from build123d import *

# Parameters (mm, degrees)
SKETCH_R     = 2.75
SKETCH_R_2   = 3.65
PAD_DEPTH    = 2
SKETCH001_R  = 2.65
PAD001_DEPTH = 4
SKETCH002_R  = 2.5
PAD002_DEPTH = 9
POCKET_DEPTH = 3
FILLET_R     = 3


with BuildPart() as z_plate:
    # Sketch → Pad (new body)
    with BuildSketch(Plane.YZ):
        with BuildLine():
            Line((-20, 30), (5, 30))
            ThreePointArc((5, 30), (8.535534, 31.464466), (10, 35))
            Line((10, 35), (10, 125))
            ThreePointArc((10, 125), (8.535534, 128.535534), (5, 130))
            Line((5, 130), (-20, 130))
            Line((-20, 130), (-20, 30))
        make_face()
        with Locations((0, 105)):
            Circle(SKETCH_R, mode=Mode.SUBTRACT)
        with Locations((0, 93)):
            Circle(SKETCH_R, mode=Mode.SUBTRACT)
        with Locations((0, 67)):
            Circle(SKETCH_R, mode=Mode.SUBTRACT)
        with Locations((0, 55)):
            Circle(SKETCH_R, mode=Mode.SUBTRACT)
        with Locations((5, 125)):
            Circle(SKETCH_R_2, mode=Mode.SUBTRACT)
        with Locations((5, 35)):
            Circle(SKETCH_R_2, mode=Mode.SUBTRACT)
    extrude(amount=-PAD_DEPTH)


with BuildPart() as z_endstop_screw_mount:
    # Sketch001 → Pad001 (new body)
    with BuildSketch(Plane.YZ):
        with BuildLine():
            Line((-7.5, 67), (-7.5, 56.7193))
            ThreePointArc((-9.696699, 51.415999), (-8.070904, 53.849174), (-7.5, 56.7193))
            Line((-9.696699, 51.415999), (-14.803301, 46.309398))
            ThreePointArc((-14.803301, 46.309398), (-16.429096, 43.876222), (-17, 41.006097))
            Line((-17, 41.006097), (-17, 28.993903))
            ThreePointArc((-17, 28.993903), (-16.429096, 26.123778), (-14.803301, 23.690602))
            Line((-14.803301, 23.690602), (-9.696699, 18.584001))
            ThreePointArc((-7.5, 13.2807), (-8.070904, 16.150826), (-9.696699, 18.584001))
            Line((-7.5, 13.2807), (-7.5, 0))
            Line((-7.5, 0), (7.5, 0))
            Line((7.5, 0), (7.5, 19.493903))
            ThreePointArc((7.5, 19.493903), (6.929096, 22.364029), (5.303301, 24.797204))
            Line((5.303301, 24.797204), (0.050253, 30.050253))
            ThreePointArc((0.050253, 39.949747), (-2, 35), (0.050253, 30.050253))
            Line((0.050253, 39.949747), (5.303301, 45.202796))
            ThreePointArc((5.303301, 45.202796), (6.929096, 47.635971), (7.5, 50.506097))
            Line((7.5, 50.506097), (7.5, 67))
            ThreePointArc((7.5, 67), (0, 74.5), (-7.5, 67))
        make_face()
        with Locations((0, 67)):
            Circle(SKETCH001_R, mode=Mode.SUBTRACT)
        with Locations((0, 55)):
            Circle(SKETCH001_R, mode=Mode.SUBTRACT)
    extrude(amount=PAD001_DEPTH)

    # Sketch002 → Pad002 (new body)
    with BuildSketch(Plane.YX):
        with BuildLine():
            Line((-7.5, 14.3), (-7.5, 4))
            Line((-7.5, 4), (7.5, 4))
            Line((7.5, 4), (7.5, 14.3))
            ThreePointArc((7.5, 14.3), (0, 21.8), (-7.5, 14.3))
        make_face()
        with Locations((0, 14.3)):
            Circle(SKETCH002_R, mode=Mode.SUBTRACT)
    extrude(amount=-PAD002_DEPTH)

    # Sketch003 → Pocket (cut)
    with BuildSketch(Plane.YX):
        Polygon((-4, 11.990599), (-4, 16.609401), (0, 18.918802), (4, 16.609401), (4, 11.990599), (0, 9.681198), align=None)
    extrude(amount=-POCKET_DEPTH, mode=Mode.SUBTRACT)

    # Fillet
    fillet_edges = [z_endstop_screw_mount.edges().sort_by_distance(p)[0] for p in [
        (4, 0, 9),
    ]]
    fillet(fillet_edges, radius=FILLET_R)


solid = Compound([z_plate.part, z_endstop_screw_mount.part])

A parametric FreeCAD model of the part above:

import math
import FreeCAD as App
import Part
import Sketcher
Q = App.Units.Quantity


def edges_at(feature, points):
    """Names of the edges that pass closest to the given points."""
    edges = feature.Shape.Edges
    near = lambda p: min(range(len(edges)), key=lambda i: edges[i].distToShape(Part.Vertex(*p))[0])
    return sorted({f"Edge{near(p) + 1}" for p in points})

doc = App.newDocument("Part")
body = doc.addObject("PartDesign::Body", "Body")

sketch1 = doc.addObject("Sketcher::SketchObject", "Sketch")
body.addObject(sketch1)
sketch1.AttachmentSupport = (doc.YZ_Plane, [""])
sketch1.MapMode = "FlatFace"
sketch1.addGeometry([
    Part.LineSegment(App.Vector(-20, 30, 0), App.Vector(5, 30, 0)),
    Part.ArcOfCircle(Part.Circle(App.Vector(5, 35, 0), App.Vector(0, 0, 1), 5), math.radians(-90.000004), math.radians(0.000004)),
    Part.LineSegment(App.Vector(10, 35, 0), App.Vector(10, 125, 0)),
    Part.ArcOfCircle(Part.Circle(App.Vector(5, 125, 0), App.Vector(0, 0, 1), 5), math.radians(-0.000004), math.radians(90.000004)),
    Part.LineSegment(App.Vector(5, 130, 0), App.Vector(-20, 130, 0)),
    Part.LineSegment(App.Vector(-20, 130, 0), App.Vector(-20, 30, 0)),
    Part.Circle(App.Vector(0, 55, 0), App.Vector(0, 0, 1), 2.75),
    Part.Circle(App.Vector(0, 67, 0), App.Vector(0, 0, 1), 2.75),
    Part.Circle(App.Vector(5, 35, 0), App.Vector(0, 0, 1), 3.65),
    Part.Circle(App.Vector(0, 93, 0), App.Vector(0, 0, 1), 2.75),
    Part.Circle(App.Vector(0, 105, 0), App.Vector(0, 0, 1), 2.75),
    Part.Circle(App.Vector(5, 125, 0), App.Vector(0, 0, 1), 3.65),
], False)
sketch1.addConstraint([
    Sketcher.Constraint("Tangent", 0, 2, 1, 1),
    Sketcher.Constraint("Tangent", 1, 2, 2, 1),
    Sketcher.Constraint("Tangent", 2, 2, 3, 1),
    Sketcher.Constraint("Tangent", 3, 2, 4, 1),
    Sketcher.Constraint("Coincident", 4, 2, 5, 1),
    Sketcher.Constraint("Coincident", 5, 2, 0, 1),
    Sketcher.Constraint("Horizontal", 0),
    Sketcher.Constraint("Vertical", 2),
    Sketcher.Constraint("Horizontal", 4),
    Sketcher.Constraint("Vertical", 5),
    Sketcher.Constraint("Coincident", 8, 3, 1, 3),
    Sketcher.Constraint("Coincident", 11, 3, 3, 3),
    Sketcher.Constraint("Equal", 1, 3),
    Sketcher.Constraint("Equal", 6, 7),
    Sketcher.Constraint("Equal", 7, 9),
    Sketcher.Constraint("Equal", 9, 10),
    Sketcher.Constraint("Equal", 8, 11),
    Sketcher.Constraint("PointOnObject", 6, 3, -2),
    Sketcher.Constraint("PointOnObject", 7, 3, -2),
    Sketcher.Constraint("PointOnObject", 9, 3, -2),
    Sketcher.Constraint("PointOnObject", 10, 3, -2),
    Sketcher.Constraint("Radius", 1, Q("5 mm")),
    Sketcher.Constraint("Diameter", 6, Q("5.5 mm")),
    Sketcher.Constraint("Diameter", 8, Q("7.3 mm")),
    Sketcher.Constraint("DistanceX", 0, 1, 0, 2, Q("25 mm")),
    Sketcher.Constraint("DistanceY", 2, 1, 2, 2, Q("90 mm")),
    Sketcher.Constraint("DistanceX", -1, 1, 1, 3, Q("5 mm")),
    Sketcher.Constraint("DistanceY", -1, 1, 1, 3, Q("35 mm")),
    Sketcher.Constraint("DistanceY", -1, 1, 6, 3, Q("55 mm")),
    Sketcher.Constraint("DistanceY", -1, 1, 7, 3, Q("67 mm")),
    Sketcher.Constraint("DistanceY", -1, 1, 9, 3, Q("93 mm")),
    Sketcher.Constraint("DistanceY", -1, 1, 10, 3, Q("105 mm")),
])
pad1 = doc.addObject("PartDesign::Pad", "Pad")
body.addObject(pad1)
pad1.Profile = sketch1
pad1.Length = 2
pad1.Reversed = True
body2 = doc.addObject("PartDesign::Body", "Body001")

sketch2 = doc.addObject("Sketcher::SketchObject", "Sketch001")
body2.addObject(sketch2)
sketch2.AttachmentSupport = (doc.getObject("YZ_Plane001"), [""])
sketch2.MapMode = "FlatFace"
sketch2.addGeometry([
    Part.LineSegment(App.Vector(-7.5, 67, 0), App.Vector(-7.5, 56.7193, 0)),
    Part.ArcOfCircle(Part.Circle(App.Vector(-15.000006, 56.719302, 0), App.Vector(0, 0, 1), 7.500006), math.radians(-44.999981), math.radians(-0.000016)),
    Part.LineSegment(App.Vector(-9.696699, 51.415999, 0), App.Vector(-14.803301, 46.309398, 0)),
    Part.ArcOfCircle(Part.Circle(App.Vector(-9.49999, 41.006093, 0), App.Vector(0, 0, 1), 7.50001), math.radians(135.000034), math.radians(179.99997)),
    Part.LineSegment(App.Vector(-17, 41.006097, 0), App.Vector(-17, 28.993903, 0)),
    Part.ArcOfCircle(Part.Circle(App.Vector(-9.49999, 28.993907, 0), App.Vector(0, 0, 1), 7.50001), math.radians(-179.99997), math.radians(-135.000034)),
    Part.LineSegment(App.Vector(-14.803301, 23.690602, 0), App.Vector(-9.696699, 18.584001, 0)),
    Part.ArcOfCircle(Part.Circle(App.Vector(-15.000006, 13.280698, 0), App.Vector(0, 0, 1), 7.500006), math.radians(0.000016), math.radians(44.999981)),
    Part.LineSegment(App.Vector(-7.5, 13.2807, 0), App.Vector(-7.5, 0, 0)),
    Part.LineSegment(App.Vector(-7.5, 0, 0), App.Vector(7.5, 0, 0)),
    Part.LineSegment(App.Vector(7.5, 0, 0), App.Vector(7.5, 19.493903, 0)),
    Part.ArcOfCircle(Part.Circle(App.Vector(-0.000006, 19.493901, 0), App.Vector(0, 0, 1), 7.500006), math.radians(0.000016), math.radians(44.999981)),
    Part.LineSegment(App.Vector(5.303301, 24.797204, 0), App.Vector(0.050253, 30.050253, 0)),
    Part.ArcOfCircle(Part.Circle(App.Vector(4.999998, 35, 0), App.Vector(0, 0, 1), 6.999998), math.radians(134.999987), math.radians(225.000013)),
    Part.LineSegment(App.Vector(0.050253, 39.949747, 0), App.Vector(5.303301, 45.202796, 0)),
    Part.ArcOfCircle(Part.Circle(App.Vector(-0.000006, 50.506099, 0), App.Vector(0, 0, 1), 7.500006), math.radians(-44.999981), math.radians(-0.000016)),
    Part.LineSegment(App.Vector(7.5, 50.506097, 0), App.Vector(7.5, 67, 0)),
    Part.ArcOfCircle(Part.Circle(App.Vector(0, 67, 0), App.Vector(0, 0, 1), 7.5), math.radians(0), math.radians(180)),
    Part.Circle(App.Vector(0, 55, 0), App.Vector(0, 0, 1), 2.65),
    Part.Circle(App.Vector(0, 67, 0), App.Vector(0, 0, 1), 2.65),
], False)
sketch2.addConstraint([
    Sketcher.Constraint("Tangent", 0, 2, 1, 2),
    Sketcher.Constraint("Tangent", 1, 1, 2, 1),
    Sketcher.Constraint("Tangent", 2, 2, 3, 1),
    Sketcher.Constraint("Tangent", 3, 2, 4, 1),
    Sketcher.Constraint("Tangent", 4, 2, 5, 1),
    Sketcher.Constraint("Tangent", 5, 2, 6, 1),
    Sketcher.Constraint("Tangent", 6, 2, 7, 2),
    Sketcher.Constraint("Tangent", 7, 1, 8, 1),
    Sketcher.Constraint("Coincident", 8, 2, 9, 1),
    Sketcher.Constraint("Coincident", 9, 2, 10, 1),
    Sketcher.Constraint("Tangent", 10, 2, 11, 1),
    Sketcher.Constraint("Tangent", 11, 2, 12, 1),
    Sketcher.Constraint("Tangent", 12, 2, 13, 2),
    Sketcher.Constraint("Tangent", 13, 1, 14, 1),
    Sketcher.Constraint("Tangent", 14, 2, 15, 1),
    Sketcher.Constraint("Tangent", 15, 2, 16, 1),
    Sketcher.Constraint("Tangent", 16, 2, 17, 1),
    Sketcher.Constraint("Tangent", 17, 2, 0, 1),
    Sketcher.Constraint("Vertical", 0),
    Sketcher.Constraint("Vertical", 4),
    Sketcher.Constraint("Vertical", 8),
    Sketcher.Constraint("Horizontal", 9),
    Sketcher.Constraint("Vertical", 10),
    Sketcher.Constraint("Vertical", 16),
    Sketcher.Constraint("Coincident", 19, 3, 17, 3),
    Sketcher.Constraint("Equal", 3, 5),
    Sketcher.Constraint("Equal", 1, 7),
    Sketcher.Constraint("Equal", 7, 11),
    Sketcher.Constraint("Equal", 11, 15),
    Sketcher.Constraint("Equal", 18, 19),
    Sketcher.Constraint("Symmetric", 8, 2, 9, 2, -1, 1),
    Sketcher.Constraint("PointOnObject", 17, 3, -2),
    Sketcher.Constraint("PointOnObject", 18, 3, -2),
    Sketcher.Constraint("Perpendicular", 2, 6),
    Sketcher.Constraint("Parallel", 6, 12),
    Sketcher.Constraint("Perpendicular", 12, 14),
    Sketcher.Constraint("Vertical", 1, 3, 7, 3),
    Sketcher.Constraint("Vertical", 2, 2, 5, 2),
    Sketcher.Constraint("Diameter", 18, Q("5.3 mm")),
    Sketcher.Constraint("Radius", 17, Q("7.5 mm")),
    Sketcher.Constraint("DistanceY", -1, 1, 13, 3, Q("35 mm")),
    Sketcher.Constraint("DistanceY", -1, 1, 17, 3, Q("67 mm")),
    Sketcher.Constraint("DistanceY", -1, 1, 18, 3, Q("55 mm")),
    Sketcher.Constraint("DistanceX", 3, 2, -1, 1, Q("17 mm")),
    Sketcher.Constraint("Radius", 3, Q("7.50001 mm")),
    Sketcher.Constraint("DistanceY", 0, 2, 0, 1, Q("10.2807 mm")),
    Sketcher.Constraint("DistanceY", 8, 2, 8, 1, Q("13.2807 mm")),
    Sketcher.Constraint("DistanceY", -1, 1, 1, 1, Q("51.415999 mm")),
    Sketcher.Constraint("Radius", 13, Q("6.999998 mm")),
    Sketcher.Constraint("DistanceY", -1, 1, 11, 3, Q("19.493901 mm")),
])
pad2 = doc.addObject("PartDesign::Pad", "Pad001")
body2.addObject(pad2)
pad2.Profile = sketch2
pad2.Length = 4

sketch3 = doc.addObject("Sketcher::SketchObject", "Sketch002")
body2.addObject(sketch3)
sketch3.AttachmentSupport = (doc.getObject("XY_Plane001"), [""])
sketch3.MapMode = "FlatFace"
sketch3.addGeometry([
    Part.LineSegment(App.Vector(14.3, -7.5, 0), App.Vector(4, -7.5, 0)),
    Part.LineSegment(App.Vector(4, -7.5, 0), App.Vector(4, 7.5, 0)),
    Part.LineSegment(App.Vector(4, 7.5, 0), App.Vector(14.3, 7.5, 0)),
    Part.ArcOfCircle(Part.Circle(App.Vector(14.3, 0, 0), App.Vector(0, 0, 1), 7.5), math.radians(-90), math.radians(90)),
    Part.Circle(App.Vector(14.3, 0, 0), App.Vector(0, 0, 1), 2.5),
], False)
sketch3.addConstraint([
    Sketcher.Constraint("Coincident", 0, 2, 1, 1),
    Sketcher.Constraint("Coincident", 1, 2, 2, 1),
    Sketcher.Constraint("Tangent", 2, 2, 3, 2),
    Sketcher.Constraint("Tangent", 3, 1, 0, 1),
    Sketcher.Constraint("Horizontal", 0),
    Sketcher.Constraint("Vertical", 1),
    Sketcher.Constraint("Horizontal", 2),
    Sketcher.Constraint("Coincident", 4, 3, 3, 3),
    Sketcher.Constraint("PointOnObject", 3, 3, -1),
    Sketcher.Constraint("Diameter", 4, Q("5 mm")),
    Sketcher.Constraint("Radius", 3, Q("7.5 mm")),
    Sketcher.Constraint("DistanceX", 0, 2, 0, 1, Q("10.3 mm")),
    Sketcher.Constraint("DistanceX", -1, 1, 0, 2, Q("4 mm")),
])
pad3 = doc.addObject("PartDesign::Pad", "Pad002")
body2.addObject(pad3)
pad3.Profile = sketch3
pad3.Length = 9

sketch4 = doc.addObject("Sketcher::SketchObject", "Sketch003")
body2.addObject(sketch4)
sketch4.AttachmentSupport = (doc.getObject("XY_Plane001"), [""])
sketch4.MapMode = "FlatFace"
sketch4.addGeometry([
    Part.LineSegment(App.Vector(16.609401, -4, 0), App.Vector(11.990599, -4, 0)),
    Part.LineSegment(App.Vector(11.990599, -4, 0), App.Vector(9.681198, 0, 0)),
    Part.LineSegment(App.Vector(9.681198, 0, 0), App.Vector(11.990599, 4, 0)),
    Part.LineSegment(App.Vector(11.990599, 4, 0), App.Vector(16.609401, 4, 0)),
    Part.LineSegment(App.Vector(16.609401, 4, 0), App.Vector(18.918802, 0, 0)),
    Part.LineSegment(App.Vector(18.918802, 0, 0), App.Vector(16.609401, -4, 0)),
], False)
sketch4.addConstraint([
    Sketcher.Constraint("Coincident", 0, 2, 1, 1),
    Sketcher.Constraint("Coincident", 1, 2, 2, 1),
    Sketcher.Constraint("Coincident", 2, 2, 3, 1),
    Sketcher.Constraint("Coincident", 3, 2, 4, 1),
    Sketcher.Constraint("Coincident", 4, 2, 5, 1),
    Sketcher.Constraint("Coincident", 5, 2, 0, 1),
    Sketcher.Constraint("Horizontal", 0),
    Sketcher.Constraint("Horizontal", 3),
    Sketcher.Constraint("Symmetric", 0, 2, 2, 2, -1),
    Sketcher.Constraint("PointOnObject", 1, 2, -1),
    Sketcher.Constraint("PointOnObject", 4, 2, -1),
    Sketcher.Constraint("Parallel", 1, 4),
    Sketcher.Constraint("Parallel", 2, 5),
    Sketcher.Constraint("Angle", 1, Q("119.999999 deg")),
    Sketcher.Constraint("DistanceY", 0, 2, -1, 1, Q("4 mm")),
    Sketcher.Constraint("DistanceX", 0, 2, 0, 1, Q("4.618802 mm")),
    Sketcher.Constraint("DistanceX", -1, 1, 0, 2, Q("11.990599 mm")),
])
pocket1 = doc.addObject("PartDesign::Pocket", "Pocket")
body2.addObject(pocket1)
pocket1.Profile = sketch4
pocket1.Length = 3
pocket1.Reversed = True
doc.recompute()

fillet = doc.addObject("PartDesign::Fillet", "Fillet")
body2.addObject(fillet)
fillet.Base = (pocket1, edges_at(pocket1, [(4, 0, 9)]))
fillet.Radius = 3

doc.recompute()
